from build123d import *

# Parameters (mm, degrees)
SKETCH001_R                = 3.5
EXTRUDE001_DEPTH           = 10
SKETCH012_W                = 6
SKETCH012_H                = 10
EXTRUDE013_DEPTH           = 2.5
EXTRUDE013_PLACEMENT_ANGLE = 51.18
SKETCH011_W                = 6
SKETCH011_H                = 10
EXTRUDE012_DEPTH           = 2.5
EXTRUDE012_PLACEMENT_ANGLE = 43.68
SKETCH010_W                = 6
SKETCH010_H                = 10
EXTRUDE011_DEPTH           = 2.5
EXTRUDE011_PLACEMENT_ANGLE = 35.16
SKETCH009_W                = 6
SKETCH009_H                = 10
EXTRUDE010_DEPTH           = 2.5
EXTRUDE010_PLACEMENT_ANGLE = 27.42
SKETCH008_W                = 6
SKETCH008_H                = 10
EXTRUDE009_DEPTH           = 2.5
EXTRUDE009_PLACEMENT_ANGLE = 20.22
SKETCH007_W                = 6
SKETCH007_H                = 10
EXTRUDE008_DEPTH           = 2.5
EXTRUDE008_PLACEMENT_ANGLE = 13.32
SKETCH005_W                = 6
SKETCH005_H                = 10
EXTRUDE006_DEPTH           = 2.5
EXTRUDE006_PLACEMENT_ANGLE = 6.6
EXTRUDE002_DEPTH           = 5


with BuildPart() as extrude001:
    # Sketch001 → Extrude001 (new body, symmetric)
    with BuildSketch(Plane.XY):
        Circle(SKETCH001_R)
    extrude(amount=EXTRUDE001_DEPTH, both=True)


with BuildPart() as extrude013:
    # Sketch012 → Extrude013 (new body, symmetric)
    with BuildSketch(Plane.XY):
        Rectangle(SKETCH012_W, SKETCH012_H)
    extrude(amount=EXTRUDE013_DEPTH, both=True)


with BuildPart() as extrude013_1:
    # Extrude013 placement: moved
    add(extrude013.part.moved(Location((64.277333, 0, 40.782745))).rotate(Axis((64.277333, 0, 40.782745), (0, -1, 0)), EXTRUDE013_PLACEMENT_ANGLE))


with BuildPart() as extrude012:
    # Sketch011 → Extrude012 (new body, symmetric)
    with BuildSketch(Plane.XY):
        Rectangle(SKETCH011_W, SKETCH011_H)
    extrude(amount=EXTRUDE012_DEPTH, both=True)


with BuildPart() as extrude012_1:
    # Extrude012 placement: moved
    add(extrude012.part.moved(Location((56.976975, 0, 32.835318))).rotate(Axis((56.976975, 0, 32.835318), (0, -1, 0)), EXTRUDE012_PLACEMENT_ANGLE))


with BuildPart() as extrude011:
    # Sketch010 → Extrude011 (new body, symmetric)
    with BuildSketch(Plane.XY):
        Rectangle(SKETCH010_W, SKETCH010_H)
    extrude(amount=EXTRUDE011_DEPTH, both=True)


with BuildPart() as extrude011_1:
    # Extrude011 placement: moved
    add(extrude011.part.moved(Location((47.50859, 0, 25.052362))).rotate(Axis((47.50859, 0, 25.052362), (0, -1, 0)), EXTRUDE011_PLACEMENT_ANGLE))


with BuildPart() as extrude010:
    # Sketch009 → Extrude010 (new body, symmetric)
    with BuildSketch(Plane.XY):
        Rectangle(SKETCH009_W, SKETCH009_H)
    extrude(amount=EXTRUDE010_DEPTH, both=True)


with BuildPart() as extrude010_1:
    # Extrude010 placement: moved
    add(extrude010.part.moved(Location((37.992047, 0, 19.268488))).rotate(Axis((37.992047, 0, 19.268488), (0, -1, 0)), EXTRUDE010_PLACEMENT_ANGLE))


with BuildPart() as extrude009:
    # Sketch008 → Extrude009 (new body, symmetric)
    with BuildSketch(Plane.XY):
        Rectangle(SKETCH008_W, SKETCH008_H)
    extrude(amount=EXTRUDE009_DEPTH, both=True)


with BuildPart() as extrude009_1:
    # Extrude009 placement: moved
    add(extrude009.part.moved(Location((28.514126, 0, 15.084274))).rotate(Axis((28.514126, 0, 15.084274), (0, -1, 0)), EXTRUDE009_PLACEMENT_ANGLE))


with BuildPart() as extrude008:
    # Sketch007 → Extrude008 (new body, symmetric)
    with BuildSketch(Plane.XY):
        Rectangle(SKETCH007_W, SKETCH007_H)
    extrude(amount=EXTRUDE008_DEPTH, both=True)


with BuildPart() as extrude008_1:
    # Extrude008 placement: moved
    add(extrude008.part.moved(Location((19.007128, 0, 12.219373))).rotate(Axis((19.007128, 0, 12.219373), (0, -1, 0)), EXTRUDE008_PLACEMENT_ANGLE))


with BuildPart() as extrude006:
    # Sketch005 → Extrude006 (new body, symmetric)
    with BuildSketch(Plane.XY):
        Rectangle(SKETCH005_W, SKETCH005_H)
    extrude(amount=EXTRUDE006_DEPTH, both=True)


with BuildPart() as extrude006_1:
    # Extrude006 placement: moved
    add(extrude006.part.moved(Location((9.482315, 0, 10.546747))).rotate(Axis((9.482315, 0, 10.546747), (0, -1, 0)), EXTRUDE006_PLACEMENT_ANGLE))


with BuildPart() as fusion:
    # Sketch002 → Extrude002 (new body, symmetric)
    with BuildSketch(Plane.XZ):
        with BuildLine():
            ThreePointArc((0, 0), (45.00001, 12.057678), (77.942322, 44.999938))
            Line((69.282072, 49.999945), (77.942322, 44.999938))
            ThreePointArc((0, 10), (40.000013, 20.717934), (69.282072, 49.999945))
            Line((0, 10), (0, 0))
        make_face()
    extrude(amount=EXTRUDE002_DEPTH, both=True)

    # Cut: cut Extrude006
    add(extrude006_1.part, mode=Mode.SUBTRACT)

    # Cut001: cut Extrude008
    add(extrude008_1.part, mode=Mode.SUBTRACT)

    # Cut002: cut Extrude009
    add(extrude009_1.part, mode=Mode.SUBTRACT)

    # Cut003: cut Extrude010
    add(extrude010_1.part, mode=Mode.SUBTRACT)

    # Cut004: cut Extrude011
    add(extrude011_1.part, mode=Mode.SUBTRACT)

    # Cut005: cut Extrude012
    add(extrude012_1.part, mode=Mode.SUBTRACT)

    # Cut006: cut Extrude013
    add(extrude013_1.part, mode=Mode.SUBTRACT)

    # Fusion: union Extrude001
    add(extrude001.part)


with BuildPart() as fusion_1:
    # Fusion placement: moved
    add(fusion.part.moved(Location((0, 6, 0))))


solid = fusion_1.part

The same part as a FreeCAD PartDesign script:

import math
import FreeCAD as App
import Part
import Sketcher

doc = App.newDocument("Part")
body = doc.addObject("PartDesign::Body", "Body")

sketch1 = body.newObject("Sketcher::SketchObject", "Sketch")
sketch1.AttachmentSupport = (doc.getObject("XY_Plane"), [""])
sketch1.MapMode = "FlatFace"
sketch1.addGeometry(Part.Circle(App.Vector(0, 0, 0), App.Vector(0, 0, 1), 3.5), False)
sketch1.addConstraint([
    Sketcher.Constraint("Coincident", 0, 3, -1, 1),
    Sketcher.Constraint("Diameter", 0, 7.0),
])
pad1 = body.newObject("PartDesign::Pad", "Pad")
pad1.Profile = sketch1
pad1.Length = 20
pad1.Midplane = True
body2 = doc.addObject("PartDesign::Body", "Body001")

sketch2 = body2.newObject("Sketcher::SketchObject", "Sketch001")
sketch2.AttachmentSupport = (doc.getObject("XY_Plane001"), [""])
sketch2.MapMode = "FlatFace"
sketch2.addGeometry([
    Part.LineSegment(App.Vector(-3, 5, 0), App.Vector(-3, -5, 0)),
    Part.LineSegment(App.Vector(-3, -5, 0), App.Vector(3, -5, 0)),
    Part.LineSegment(App.Vector(3, -5, 0), App.Vector(3, 5, 0)),
    Part.LineSegment(App.Vector(3, 5, 0), App.Vector(-3, 5, 0)),
], False)
sketch2.addConstraint([
    Sketcher.Constraint("Coincident", 0, 2, 1, 1),
    Sketcher.Constraint("Coincident", 1, 2, 2, 1),
    Sketcher.Constraint("Coincident", 2, 2, 3, 1),
    Sketcher.Constraint("Coincident", 3, 2, 0, 1),
    Sketcher.Constraint("Vertical", 0),
    Sketcher.Constraint("Horizontal", 1),
    Sketcher.Constraint("Vertical", 2),
    Sketcher.Constraint("Horizontal", 3),
    Sketcher.Constraint("Symmetric", 0, 2, 2, 2, -1, 1),
    Sketcher.Constraint("DistanceX", 1, 1, 1, 2, 6.0),
    Sketcher.Constraint("DistanceY", 0, 2, 0, 1, 10.0),
])
pad2 = body2.newObject("PartDesign::Pad", "Pad001")
pad2.Profile = sketch2
pad2.Length = 5
pad2.Midplane = True
body3 = doc.addObject("PartDesign::Body", "Body002")
doc.recompute()

body2.Placement = App.Placement(App.Vector(64.277333, 0, 40.782745), App.Rotation(App.Vector(0, -1, 0), 51.18))
boolean = body3.newObject("PartDesign::Boolean", "Boolean")
boolean.Type = "Fuse"
boolean.addObjects([body2])
body4 = doc.addObject("PartDesign::Body", "Body003")

sketch3 = body4.newObject("Sketcher::SketchObject", "Sketch002")
sketch3.AttachmentSupport = (doc.getObject("XY_Plane003"), [""])
sketch3.MapMode = "FlatFace"
sketch3.addGeometry([
    Part.LineSegment(App.Vector(-3, 5, 0), App.Vector(-3, -5, 0)),
    Part.LineSegment(App.Vector(-3, -5, 0), App.Vector(3, -5, 0)),
    Part.LineSegment(App.Vector(3, -5, 0), App.Vector(3, 5, 0)),
    Part.LineSegment(App.Vector(3, 5, 0), App.Vector(-3, 5, 0)),
], False)
sketch3.addConstraint([
    Sketcher.Constraint("Coincident", 0, 2, 1, 1),
    Sketcher.Constraint("Coincident", 1, 2, 2, 1),
    Sketcher.Constraint("Coincident", 2, 2, 3, 1),
    Sketcher.Constraint("Coincident", 3, 2, 0, 1),
    Sketcher.Constraint("Vertical", 0),
    Sketcher.Constraint("Horizontal", 1),
    Sketcher.Constraint("Vertical", 2),
    Sketcher.Constraint("Horizontal", 3),
    Sketcher.Constraint("Symmetric", 0, 2, 2, 2, -1, 1),
    Sketcher.Constraint("DistanceX", 1, 1, 1, 2, 6.0),
    Sketcher.Constraint("DistanceY", 0, 2, 0, 1, 10.0),
])
pad3 = body4.newObject("PartDesign::Pad", "Pad002")
pad3.Profile = sketch3
pad3.Length = 5
pad3.Midplane = True
body5 = doc.addObject("PartDesign::Body", "Body004")
doc.recompute()

body4.Placement = App.Placement(App.Vector(56.976975, 0, 32.835318), App.Rotation(App.Vector(0, -1, 0), 43.68))
boolean2 = body5.newObject("PartDesign::Boolean", "Boolean001")
boolean2.Type = "Fuse"
boolean2.addObjects([body4])
body6 = doc.addObject("PartDesign::Body", "Body005")

sketch4 = body6.newObject("Sketcher::SketchObject", "Sketch003")
sketch4.AttachmentSupport = (doc.getObject("XY_Plane005"), [""])
sketch4.MapMode = "FlatFace"
sketch4.addGeometry([
    Part.LineSegment(App.Vector(-3, 5, 0), App.Vector(-3, -5, 0)),
    Part.LineSegment(App.Vector(-3, -5, 0), App.Vector(3, -5, 0)),
    Part.LineSegment(App.Vector(3, -5, 0), App.Vector(3, 5, 0)),
    Part.LineSegment(App.Vector(3, 5, 0), App.Vector(-3, 5, 0)),
], False)
sketch4.addConstraint([
    Sketcher.Constraint("Coincident", 0, 2, 1, 1),
    Sketcher.Constraint("Coincident", 1, 2, 2, 1),
    Sketcher.Constraint("Coincident", 2, 2, 3, 1),
    Sketcher.Constraint("Coincident", 3, 2, 0, 1),
    Sketcher.Constraint("Vertical", 0),
    Sketcher.Constraint("Horizontal", 1),
    Sketcher.Constraint("Vertical", 2),
    Sketcher.Constraint("Horizontal", 3),
    Sketcher.Constraint("Symmetric", 0, 2, 2, 2, -1, 1),
    Sketcher.Constraint("DistanceX", 1, 1, 1, 2, 6.0),
    Sketcher.Constraint("DistanceY", 0, 2, 0, 1, 10.0),
])
pad4 = body6.newObject("PartDesign::Pad", "Pad003")
pad4.Profile = sketch4
pad4.Length = 5
pad4.Midplane = True
body7 = doc.addObject("PartDesign::Body", "Body006")
doc.recompute()

body6.Placement = App.Placement(App.Vector(47.50859, 0, 25.052362), App.Rotation(App.Vector(0, -1, 0), 35.16))
boolean3 = body7.newObject("PartDesign::Boolean", "Boolean002")
boolean3.Type = "Fuse"
boolean3.addObjects([body6])
body8 = doc.addObject("PartDesign::Body", "Body007")

sketch5 = body8.newObject("Sketcher::SketchObject", "Sketch004")
sketch5.AttachmentSupport = (doc.getObject("XY_Plane007"), [""])
sketch5.MapMode = "FlatFace"
sketch5.addGeometry([
    Part.LineSegment(App.Vector(-3, 5, 0), App.Vector(-3, -5, 0)),
    Part.LineSegment(App.Vector(-3, -5, 0), App.Vector(3, -5, 0)),
    Part.LineSegment(App.Vector(3, -5, 0), App.Vector(3, 5, 0)),
    Part.LineSegment(App.Vector(3, 5, 0), App.Vector(-3, 5, 0)),
], False)
sketch5.addConstraint([
    Sketcher.Constraint("Coincident", 0, 2, 1, 1),
    Sketcher.Constraint("Coincident", 1, 2, 2, 1),
    Sketcher.Constraint("Coincident", 2, 2, 3, 1),
    Sketcher.Constraint("Coincident", 3, 2, 0, 1),
    Sketcher.Constraint("Vertical", 0),
    Sketcher.Constraint("Horizontal", 1),
    Sketcher.Constraint("Vertical", 2),
    Sketcher.Constraint("Horizontal", 3),
    Sketcher.Constraint("Symmetric", 0, 2, 2, 2, -1, 1),
    Sketcher.Constraint("DistanceX", 1, 1, 1, 2, 6.0),
    Sketcher.Constraint("DistanceY", 0, 2, 0, 1, 10.0),
])
pad5 = body8.newObject("PartDesign::Pad", "Pad004")
pad5.Profile = sketch5
pad5.Length = 5
pad5.Midplane = True
body9 = doc.addObject("PartDesign::Body", "Body008")
doc.recompute()

body8.Placement = App.Placement(App.Vector(37.992047, 0, 19.268488), App.Rotation(App.Vector(0, -1, 0), 27.42))
boolean4 = body9.newObject("PartDesign::Boolean", "Boolean003")
boolean4.Type = "Fuse"
boolean4.addObjects([body8])
body10 = doc.addObject("PartDesign::Body", "Body009")

sketch6 = body10.newObject("Sketcher::SketchObject", "Sketch005")
sketch6.AttachmentSupport = (doc.getObject("XY_Plane009"), [""])
sketch6.MapMode = "FlatFace"
sketch6.addGeometry([
    Part.LineSegment(App.Vector(-3, 5, 0), App.Vector(-3, -5, 0)),
    Part.LineSegment(App.Vector(-3, -5, 0), App.Vector(3, -5, 0)),
    Part.LineSegment(App.Vector(3, -5, 0), App.Vector(3, 5, 0)),
    Part.LineSegment(App.Vector(3, 5, 0), App.Vector(-3, 5, 0)),
], False)
sketch6.addConstraint([
    Sketcher.Constraint("Coincident", 0, 2, 1, 1),
    Sketcher.Constraint("Coincident", 1, 2, 2, 1),
    Sketcher.Constraint("Coincident", 2, 2, 3, 1),
    Sketcher.Constraint("Coincident", 3, 2, 0, 1),
    Sketcher.Constraint("Vertical", 0),
    Sketcher.Constraint("Horizontal", 1),
    Sketcher.Constraint("Vertical", 2),
    Sketcher.Constraint("Horizontal", 3),
    Sketcher.Constraint("Symmetric", 0, 2, 2, 2, -1, 1),
    Sketcher.Constraint("DistanceX", 1, 1, 1, 2, 6.0),
    Sketcher.Constraint("DistanceY", 0, 2, 0, 1, 10.0),
])
pad6 = body10.newObject("PartDesign::Pad", "Pad005")
pad6.Profile = sketch6
pad6.Length = 5
pad6.Midplane = True
body11 = doc.addObject("PartDesign::Body", "Body010")
doc.recompute()

body10.Placement = App.Placement(App.Vector(28.514126, 0, 15.084274), App.Rotation(App.Vector(0, -1, 0), 20.22))
boolean5 = body11.newObject("PartDesign::Boolean", "Boolean004")
boolean5.Type = "Fuse"
boolean5.addObjects([body10])
body12 = doc.addObject("PartDesign::Body", "Body011")

sketch7 = body12.newObject("Sketcher::SketchObject", "Sketch006")
sketch7.AttachmentSupport = (doc.getObject("XY_Plane011"), [""])
sketch7.MapMode = "FlatFace"
sketch7.addGeometry([
    Part.LineSegment(App.Vector(-3, 5, 0), App.Vector(-3, -5, 0)),
    Part.LineSegment(App.Vector(-3, -5, 0), App.Vector(3, -5, 0)),
    Part.LineSegment(App.Vector(3, -5, 0), App.Vector(3, 5, 0)),
    Part.LineSegment(App.Vector(3, 5, 0), App.Vector(-3, 5, 0)),
], False)
sketch7.addConstraint([
    Sketcher.Constraint("Coincident", 0, 2, 1, 1),
    Sketcher.Constraint("Coincident", 1, 2, 2, 1),
    Sketcher.Constraint("Coincident", 2, 2, 3, 1),
    Sketcher.Constraint("Coincident", 3, 2, 0, 1),
    Sketcher.Constraint("Vertical", 0),
    Sketcher.Constraint("Horizontal", 1),
    Sketcher.Constraint("Vertical", 2),
    Sketcher.Constraint("Horizontal", 3),
    Sketcher.Constraint("Symmetric", 0, 2, 2, 2, -1, 1),
    Sketcher.Constraint("DistanceX", 1, 1, 1, 2, 6.0),
    Sketcher.Constraint("DistanceY", 0, 2, 0, 1, 10.0),
])
pad7 = body12.newObject("PartDesign::Pad", "Pad006")
pad7.Profile = sketch7
pad7.Length = 5
pad7.Midplane = True
body13 = doc.addObject("PartDesign::Body", "Body012")
doc.recompute()

body12.Placement = App.Placement(App.Vector(19.007128, 0, 12.219373), App.Rotation(App.Vector(0, -1, 0), 13.32))
boolean6 = body13.newObject("PartDesign::Boolean", "Boolean005")
boolean6.Type = "Fuse"
boolean6.addObjects([body12])
body14 = doc.addObject("PartDesign::Body", "Body013")

sketch8 = body14.newObject("Sketcher::SketchObject", "Sketch007")
sketch8.AttachmentSupport = (doc.getObject("XY_Plane013"), [""])
sketch8.MapMode = "FlatFace"
sketch8.addGeometry([
    Part.LineSegment(App.Vector(-3, 5, 0), App.Vector(-3, -5, 0)),
    Part.LineSegment(App.Vector(-3, -5, 0), App.Vector(3, -5, 0)),
    Part.LineSegment(App.Vector(3, -5, 0), App.Vector(3, 5, 0)),
    Part.LineSegment(App.Vector(3, 5, 0), App.Vector(-3, 5, 0)),
], False)
sketch8.addConstraint([
    Sketcher.Constraint("Coincident", 0, 2, 1, 1),
    Sketcher.Constraint("Coincident", 1, 2, 2, 1),
    Sketcher.Constraint("Coincident", 2, 2, 3, 1),
    Sketcher.Constraint("Coincident", 3, 2, 0, 1),
    Sketcher.Constraint("Vertical", 0),
    Sketcher.Constraint("Horizontal", 1),
    Sketcher.Constraint("Vertical", 2),
    Sketcher.Constraint("Horizontal", 3),
    Sketcher.Constraint("Symmetric", 0, 2, 2, 2, -1, 1),
    Sketcher.Constraint("DistanceX", 1, 1, 1, 2, 6.0),
    Sketcher.Constraint("DistanceY", 0, 2, 0, 1, 10.0),
])
pad8 = body14.newObject("PartDesign::Pad", "Pad007")
pad8.Profile = sketch8
pad8.Length = 5
pad8.Midplane = True
body15 = doc.addObject("PartDesign::Body", "Body014")
doc.recompute()

body14.Placement = App.Placement(App.Vector(9.482315, 0, 10.546747), App.Rotation(App.Vector(0, -1, 0), 6.6))
boolean7 = body15.newObject("PartDesign::Boolean", "Boolean006")
boolean7.Type = "Fuse"
boolean7.addObjects([body14])
body16 = doc.addObject("PartDesign::Body", "Body015")

sketch9 = body16.newObject("Sketcher::SketchObject", "Sketch008")
sketch9.AttachmentSupport = (doc.getObject("XZ_Plane015"), [""])
sketch9.MapMode = "FlatFace"
sketch9.addGeometry([
    Part.ArcOfCircle(Part.Circle(App.Vector(0, 90, 0), App.Vector(0, 0, 1), 90), math.radians(-90), math.radians(-30)),
    Part.LineSegment(App.Vector(78, 45, 0), App.Vector(69, 50, 0)),
    Part.ArcOfCircle(Part.Circle(App.Vector(0, 90, 0), App.Vector(0, 0, 1), 80), math.radians(-90), math.radians(-30)),
    Part.LineSegment(App.Vector(0, 10, 0), App.Vector(0, 0, 0)),
], False)
sketch9.addConstraint([
    Sketcher.Constraint("Coincident", 0, 2, 1, 1),
    Sketcher.Constraint("Coincident", 1, 2, 2, 2),
    Sketcher.Constraint("Coincident", 2, 1, 3, 1),
    Sketcher.Constraint("Coincident", 3, 2, 0, 1),
    Sketcher.Constraint("Vertical", 3),
    Sketcher.Constraint("Coincident", 3, 2, -1, 1),
    Sketcher.Constraint("Coincident", 2, 3, 0, 3),
    Sketcher.Constraint("Radius", 0, 89.999999),
    Sketcher.Constraint("Radius", 2, 80.0),
    Sketcher.Constraint("DistanceX", 0, 3, 1, 2, 69.282),
    Sketcher.Constraint("DistanceX", -1, 1, 0, 2, 77.942322),
    Sketcher.Constraint("DistanceY", -1, 1, 0, 2, 44.999938),
])
pad9 = body16.newObject("PartDesign::Pad", "Pad008")
pad9.Profile = sketch9
pad9.Length = 10
pad9.Midplane = True
doc.recompute()

boolean8 = body16.newObject("PartDesign::Boolean", "Boolean007")
boolean8.Type = "Cut"
boolean8.addObjects([body15])
doc.recompute()

boolean9 = body16.newObject("PartDesign::Boolean", "Boolean008")
boolean9.Type = "Cut"
boolean9.addObjects([body13])
doc.recompute()

boolean10 = body16.newObject("PartDesign::Boolean", "Boolean009")
boolean10.Type = "Cut"
boolean10.addObjects([body11])
doc.recompute()

boolean11 = body16.newObject("PartDesign::Boolean", "Boolean010")
boolean11.Type = "Cut"
boolean11.addObjects([body9])
doc.recompute()

boolean12 = body16.newObject("PartDesign::Boolean", "Boolean011")
boolean12.Type = "Cut"
boolean12.addObjects([body7])
doc.recompute()

boolean13 = body16.newObject("PartDesign::Boolean", "Boolean012")
boolean13.Type = "Cut"
boolean13.addObjects([body5])
doc.recompute()

boolean14 = body16.newObject("PartDesign::Boolean", "Boolean013")
boolean14.Type = "Cut"
boolean14.addObjects([body3])
doc.recompute()

boolean15 = body16.newObject("PartDesign::Boolean", "Boolean014")
boolean15.Type = "Fuse"
boolean15.addObjects([body])
body17 = doc.addObject("PartDesign::Body", "Body016")
doc.recompute()

body16.Placement = App.Placement(App.Vector(0, 6, 0), App.Rotation(App.Vector(0, 0, 1), 0))
boolean16 = body17.newObject("PartDesign::Boolean", "Boolean015")
boolean16.Type = "Fuse"
boolean16.addObjects([body16])

doc.recompute()
